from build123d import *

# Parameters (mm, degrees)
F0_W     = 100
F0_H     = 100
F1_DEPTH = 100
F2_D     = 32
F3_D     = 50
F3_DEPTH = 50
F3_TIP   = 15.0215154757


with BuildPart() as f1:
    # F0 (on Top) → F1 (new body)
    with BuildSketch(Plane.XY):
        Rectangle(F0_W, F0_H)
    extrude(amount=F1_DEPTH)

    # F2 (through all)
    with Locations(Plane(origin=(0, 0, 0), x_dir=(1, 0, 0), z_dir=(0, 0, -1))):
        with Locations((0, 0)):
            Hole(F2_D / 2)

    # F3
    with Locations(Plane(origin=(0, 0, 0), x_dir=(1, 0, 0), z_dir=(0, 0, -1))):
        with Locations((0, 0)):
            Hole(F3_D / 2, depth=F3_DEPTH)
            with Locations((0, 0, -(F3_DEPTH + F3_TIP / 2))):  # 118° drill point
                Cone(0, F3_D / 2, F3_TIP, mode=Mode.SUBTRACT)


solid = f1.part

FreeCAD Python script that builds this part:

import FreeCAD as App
import Part
import Sketcher
from FreeCAD import Vector
Q = App.Units.Quantity

doc = App.newDocument("Part")
params = doc.addObject("Spreadsheet::Sheet", "Params")
for row, (alias, value) in enumerate([
    ("sketch1_width", "100 mm"),
    ("pad1_length", "100 mm"),
    ("sketch2_diameter", "32 mm"),
    ("hole_diameter", "32 mm"),
    ("sketch3_diameter", "50 mm"),
    ("hole2_diameter", "50 mm"),
    ("hole2_depth", "50 mm"),
], start=1):
    params.set(f"A{row}", alias)
    params.set(f"B{row}", "=" + value)
    params.setAlias(f"B{row}", alias)

body = doc.addObject("PartDesign::Body", "Body")

sketch1 = body.newObject("Sketcher::SketchObject", "Sketch")
sketch1.AttachmentSupport = (doc.getObject("XY_Plane"), [""])
sketch1.MapMode = "FlatFace"
sketch1.addGeometry([
    Part.LineSegment(Vector(-50, 50, 0), Vector(-50, -50, 0)),
    Part.LineSegment(Vector(-50, -50, 0), Vector(50, -50, 0)),
    Part.LineSegment(Vector(50, -50, 0), Vector(50, 50, 0)),
    Part.LineSegment(Vector(50, 50, 0), Vector(-50, 50, 0)),
], False)
sketch1.addConstraint([
    Sketcher.Constraint("Coincident", 0, 2, 1, 1),
    Sketcher.Constraint("Coincident", 1, 2, 2, 1),
    Sketcher.Constraint("Coincident", 2, 2, 3, 1),
    Sketcher.Constraint("Coincident", 3, 2, 0, 1),
    Sketcher.Constraint("Vertical", 0),
    Sketcher.Constraint("Horizontal", 1),
    Sketcher.Constraint("Vertical", 2),
    Sketcher.Constraint("Horizontal", 3),
    Sketcher.Constraint("Symmetric", 0, 2, 2, 2, -1, 1),
    Sketcher.Constraint("Equal", 3, 0),
    Sketcher.Constraint("DistanceX", 1, 1, 1, 2, Q("100 mm")),
])
sketch1.setExpression("Constraints[10]", "Params.sketch1_width")
pad1 = body.newObject("PartDesign::Pad", "Pad")
pad1.Profile = sketch1
pad1.setExpression("Length", "Params.pad1_length")

sketch2 = body.newObject("Sketcher::SketchObject", "Sketch001")
sketch2.AttachmentSupport = (doc.getObject("XY_Plane"), [""])
sketch2.MapMode = "FlatFace"
sketch2.addGeometry(Part.Circle(Vector(0, 0, 0), Vector(0, 0, 1), 16), False)
sketch2.addConstraint([
    Sketcher.Constraint("Coincident", 0, 3, -1, 1),
    Sketcher.Constraint("Diameter", 0, Q("32 mm")),
])
sketch2.setExpression("Constraints[1]", "Params.sketch2_diameter")
doc.recompute()
hole = body.newObject("PartDesign::Hole", "Hole")
hole.Profile = sketch2
hole.ThreadType = "None"
hole.setExpression("Diameter", "Params.hole_diameter")
hole.DepthType = "ThroughAll"
hole.Reversed = True

sketch3 = body.newObject("Sketcher::SketchObject", "Sketch002")
sketch3.AttachmentSupport = (doc.getObject("XY_Plane"), [""])
sketch3.MapMode = "FlatFace"
sketch3.addGeometry(Part.Circle(Vector(0, 0, 0), Vector(0, 0, 1), 25), False)
sketch3.addConstraint([
    Sketcher.Constraint("Coincident", 0, 3, -1, 1),
    Sketcher.Constraint("Diameter", 0, Q("50 mm")),
])
sketch3.setExpression("Constraints[1]", "Params.sketch3_diameter")
doc.recompute()
hole2 = body.newObject("PartDesign::Hole", "Hole001")
hole2.Profile = sketch3
hole2.ThreadType = "None"
hole2.setExpression("Diameter", "Params.hole2_diameter")
hole2.DepthType = "Dimension"
hole2.setExpression("Depth", "Params.hole2_depth")
hole2.DrillPoint = "Angled"
hole2.DrillPointAngle = 118
hole2.Reversed = True

doc.recompute()
